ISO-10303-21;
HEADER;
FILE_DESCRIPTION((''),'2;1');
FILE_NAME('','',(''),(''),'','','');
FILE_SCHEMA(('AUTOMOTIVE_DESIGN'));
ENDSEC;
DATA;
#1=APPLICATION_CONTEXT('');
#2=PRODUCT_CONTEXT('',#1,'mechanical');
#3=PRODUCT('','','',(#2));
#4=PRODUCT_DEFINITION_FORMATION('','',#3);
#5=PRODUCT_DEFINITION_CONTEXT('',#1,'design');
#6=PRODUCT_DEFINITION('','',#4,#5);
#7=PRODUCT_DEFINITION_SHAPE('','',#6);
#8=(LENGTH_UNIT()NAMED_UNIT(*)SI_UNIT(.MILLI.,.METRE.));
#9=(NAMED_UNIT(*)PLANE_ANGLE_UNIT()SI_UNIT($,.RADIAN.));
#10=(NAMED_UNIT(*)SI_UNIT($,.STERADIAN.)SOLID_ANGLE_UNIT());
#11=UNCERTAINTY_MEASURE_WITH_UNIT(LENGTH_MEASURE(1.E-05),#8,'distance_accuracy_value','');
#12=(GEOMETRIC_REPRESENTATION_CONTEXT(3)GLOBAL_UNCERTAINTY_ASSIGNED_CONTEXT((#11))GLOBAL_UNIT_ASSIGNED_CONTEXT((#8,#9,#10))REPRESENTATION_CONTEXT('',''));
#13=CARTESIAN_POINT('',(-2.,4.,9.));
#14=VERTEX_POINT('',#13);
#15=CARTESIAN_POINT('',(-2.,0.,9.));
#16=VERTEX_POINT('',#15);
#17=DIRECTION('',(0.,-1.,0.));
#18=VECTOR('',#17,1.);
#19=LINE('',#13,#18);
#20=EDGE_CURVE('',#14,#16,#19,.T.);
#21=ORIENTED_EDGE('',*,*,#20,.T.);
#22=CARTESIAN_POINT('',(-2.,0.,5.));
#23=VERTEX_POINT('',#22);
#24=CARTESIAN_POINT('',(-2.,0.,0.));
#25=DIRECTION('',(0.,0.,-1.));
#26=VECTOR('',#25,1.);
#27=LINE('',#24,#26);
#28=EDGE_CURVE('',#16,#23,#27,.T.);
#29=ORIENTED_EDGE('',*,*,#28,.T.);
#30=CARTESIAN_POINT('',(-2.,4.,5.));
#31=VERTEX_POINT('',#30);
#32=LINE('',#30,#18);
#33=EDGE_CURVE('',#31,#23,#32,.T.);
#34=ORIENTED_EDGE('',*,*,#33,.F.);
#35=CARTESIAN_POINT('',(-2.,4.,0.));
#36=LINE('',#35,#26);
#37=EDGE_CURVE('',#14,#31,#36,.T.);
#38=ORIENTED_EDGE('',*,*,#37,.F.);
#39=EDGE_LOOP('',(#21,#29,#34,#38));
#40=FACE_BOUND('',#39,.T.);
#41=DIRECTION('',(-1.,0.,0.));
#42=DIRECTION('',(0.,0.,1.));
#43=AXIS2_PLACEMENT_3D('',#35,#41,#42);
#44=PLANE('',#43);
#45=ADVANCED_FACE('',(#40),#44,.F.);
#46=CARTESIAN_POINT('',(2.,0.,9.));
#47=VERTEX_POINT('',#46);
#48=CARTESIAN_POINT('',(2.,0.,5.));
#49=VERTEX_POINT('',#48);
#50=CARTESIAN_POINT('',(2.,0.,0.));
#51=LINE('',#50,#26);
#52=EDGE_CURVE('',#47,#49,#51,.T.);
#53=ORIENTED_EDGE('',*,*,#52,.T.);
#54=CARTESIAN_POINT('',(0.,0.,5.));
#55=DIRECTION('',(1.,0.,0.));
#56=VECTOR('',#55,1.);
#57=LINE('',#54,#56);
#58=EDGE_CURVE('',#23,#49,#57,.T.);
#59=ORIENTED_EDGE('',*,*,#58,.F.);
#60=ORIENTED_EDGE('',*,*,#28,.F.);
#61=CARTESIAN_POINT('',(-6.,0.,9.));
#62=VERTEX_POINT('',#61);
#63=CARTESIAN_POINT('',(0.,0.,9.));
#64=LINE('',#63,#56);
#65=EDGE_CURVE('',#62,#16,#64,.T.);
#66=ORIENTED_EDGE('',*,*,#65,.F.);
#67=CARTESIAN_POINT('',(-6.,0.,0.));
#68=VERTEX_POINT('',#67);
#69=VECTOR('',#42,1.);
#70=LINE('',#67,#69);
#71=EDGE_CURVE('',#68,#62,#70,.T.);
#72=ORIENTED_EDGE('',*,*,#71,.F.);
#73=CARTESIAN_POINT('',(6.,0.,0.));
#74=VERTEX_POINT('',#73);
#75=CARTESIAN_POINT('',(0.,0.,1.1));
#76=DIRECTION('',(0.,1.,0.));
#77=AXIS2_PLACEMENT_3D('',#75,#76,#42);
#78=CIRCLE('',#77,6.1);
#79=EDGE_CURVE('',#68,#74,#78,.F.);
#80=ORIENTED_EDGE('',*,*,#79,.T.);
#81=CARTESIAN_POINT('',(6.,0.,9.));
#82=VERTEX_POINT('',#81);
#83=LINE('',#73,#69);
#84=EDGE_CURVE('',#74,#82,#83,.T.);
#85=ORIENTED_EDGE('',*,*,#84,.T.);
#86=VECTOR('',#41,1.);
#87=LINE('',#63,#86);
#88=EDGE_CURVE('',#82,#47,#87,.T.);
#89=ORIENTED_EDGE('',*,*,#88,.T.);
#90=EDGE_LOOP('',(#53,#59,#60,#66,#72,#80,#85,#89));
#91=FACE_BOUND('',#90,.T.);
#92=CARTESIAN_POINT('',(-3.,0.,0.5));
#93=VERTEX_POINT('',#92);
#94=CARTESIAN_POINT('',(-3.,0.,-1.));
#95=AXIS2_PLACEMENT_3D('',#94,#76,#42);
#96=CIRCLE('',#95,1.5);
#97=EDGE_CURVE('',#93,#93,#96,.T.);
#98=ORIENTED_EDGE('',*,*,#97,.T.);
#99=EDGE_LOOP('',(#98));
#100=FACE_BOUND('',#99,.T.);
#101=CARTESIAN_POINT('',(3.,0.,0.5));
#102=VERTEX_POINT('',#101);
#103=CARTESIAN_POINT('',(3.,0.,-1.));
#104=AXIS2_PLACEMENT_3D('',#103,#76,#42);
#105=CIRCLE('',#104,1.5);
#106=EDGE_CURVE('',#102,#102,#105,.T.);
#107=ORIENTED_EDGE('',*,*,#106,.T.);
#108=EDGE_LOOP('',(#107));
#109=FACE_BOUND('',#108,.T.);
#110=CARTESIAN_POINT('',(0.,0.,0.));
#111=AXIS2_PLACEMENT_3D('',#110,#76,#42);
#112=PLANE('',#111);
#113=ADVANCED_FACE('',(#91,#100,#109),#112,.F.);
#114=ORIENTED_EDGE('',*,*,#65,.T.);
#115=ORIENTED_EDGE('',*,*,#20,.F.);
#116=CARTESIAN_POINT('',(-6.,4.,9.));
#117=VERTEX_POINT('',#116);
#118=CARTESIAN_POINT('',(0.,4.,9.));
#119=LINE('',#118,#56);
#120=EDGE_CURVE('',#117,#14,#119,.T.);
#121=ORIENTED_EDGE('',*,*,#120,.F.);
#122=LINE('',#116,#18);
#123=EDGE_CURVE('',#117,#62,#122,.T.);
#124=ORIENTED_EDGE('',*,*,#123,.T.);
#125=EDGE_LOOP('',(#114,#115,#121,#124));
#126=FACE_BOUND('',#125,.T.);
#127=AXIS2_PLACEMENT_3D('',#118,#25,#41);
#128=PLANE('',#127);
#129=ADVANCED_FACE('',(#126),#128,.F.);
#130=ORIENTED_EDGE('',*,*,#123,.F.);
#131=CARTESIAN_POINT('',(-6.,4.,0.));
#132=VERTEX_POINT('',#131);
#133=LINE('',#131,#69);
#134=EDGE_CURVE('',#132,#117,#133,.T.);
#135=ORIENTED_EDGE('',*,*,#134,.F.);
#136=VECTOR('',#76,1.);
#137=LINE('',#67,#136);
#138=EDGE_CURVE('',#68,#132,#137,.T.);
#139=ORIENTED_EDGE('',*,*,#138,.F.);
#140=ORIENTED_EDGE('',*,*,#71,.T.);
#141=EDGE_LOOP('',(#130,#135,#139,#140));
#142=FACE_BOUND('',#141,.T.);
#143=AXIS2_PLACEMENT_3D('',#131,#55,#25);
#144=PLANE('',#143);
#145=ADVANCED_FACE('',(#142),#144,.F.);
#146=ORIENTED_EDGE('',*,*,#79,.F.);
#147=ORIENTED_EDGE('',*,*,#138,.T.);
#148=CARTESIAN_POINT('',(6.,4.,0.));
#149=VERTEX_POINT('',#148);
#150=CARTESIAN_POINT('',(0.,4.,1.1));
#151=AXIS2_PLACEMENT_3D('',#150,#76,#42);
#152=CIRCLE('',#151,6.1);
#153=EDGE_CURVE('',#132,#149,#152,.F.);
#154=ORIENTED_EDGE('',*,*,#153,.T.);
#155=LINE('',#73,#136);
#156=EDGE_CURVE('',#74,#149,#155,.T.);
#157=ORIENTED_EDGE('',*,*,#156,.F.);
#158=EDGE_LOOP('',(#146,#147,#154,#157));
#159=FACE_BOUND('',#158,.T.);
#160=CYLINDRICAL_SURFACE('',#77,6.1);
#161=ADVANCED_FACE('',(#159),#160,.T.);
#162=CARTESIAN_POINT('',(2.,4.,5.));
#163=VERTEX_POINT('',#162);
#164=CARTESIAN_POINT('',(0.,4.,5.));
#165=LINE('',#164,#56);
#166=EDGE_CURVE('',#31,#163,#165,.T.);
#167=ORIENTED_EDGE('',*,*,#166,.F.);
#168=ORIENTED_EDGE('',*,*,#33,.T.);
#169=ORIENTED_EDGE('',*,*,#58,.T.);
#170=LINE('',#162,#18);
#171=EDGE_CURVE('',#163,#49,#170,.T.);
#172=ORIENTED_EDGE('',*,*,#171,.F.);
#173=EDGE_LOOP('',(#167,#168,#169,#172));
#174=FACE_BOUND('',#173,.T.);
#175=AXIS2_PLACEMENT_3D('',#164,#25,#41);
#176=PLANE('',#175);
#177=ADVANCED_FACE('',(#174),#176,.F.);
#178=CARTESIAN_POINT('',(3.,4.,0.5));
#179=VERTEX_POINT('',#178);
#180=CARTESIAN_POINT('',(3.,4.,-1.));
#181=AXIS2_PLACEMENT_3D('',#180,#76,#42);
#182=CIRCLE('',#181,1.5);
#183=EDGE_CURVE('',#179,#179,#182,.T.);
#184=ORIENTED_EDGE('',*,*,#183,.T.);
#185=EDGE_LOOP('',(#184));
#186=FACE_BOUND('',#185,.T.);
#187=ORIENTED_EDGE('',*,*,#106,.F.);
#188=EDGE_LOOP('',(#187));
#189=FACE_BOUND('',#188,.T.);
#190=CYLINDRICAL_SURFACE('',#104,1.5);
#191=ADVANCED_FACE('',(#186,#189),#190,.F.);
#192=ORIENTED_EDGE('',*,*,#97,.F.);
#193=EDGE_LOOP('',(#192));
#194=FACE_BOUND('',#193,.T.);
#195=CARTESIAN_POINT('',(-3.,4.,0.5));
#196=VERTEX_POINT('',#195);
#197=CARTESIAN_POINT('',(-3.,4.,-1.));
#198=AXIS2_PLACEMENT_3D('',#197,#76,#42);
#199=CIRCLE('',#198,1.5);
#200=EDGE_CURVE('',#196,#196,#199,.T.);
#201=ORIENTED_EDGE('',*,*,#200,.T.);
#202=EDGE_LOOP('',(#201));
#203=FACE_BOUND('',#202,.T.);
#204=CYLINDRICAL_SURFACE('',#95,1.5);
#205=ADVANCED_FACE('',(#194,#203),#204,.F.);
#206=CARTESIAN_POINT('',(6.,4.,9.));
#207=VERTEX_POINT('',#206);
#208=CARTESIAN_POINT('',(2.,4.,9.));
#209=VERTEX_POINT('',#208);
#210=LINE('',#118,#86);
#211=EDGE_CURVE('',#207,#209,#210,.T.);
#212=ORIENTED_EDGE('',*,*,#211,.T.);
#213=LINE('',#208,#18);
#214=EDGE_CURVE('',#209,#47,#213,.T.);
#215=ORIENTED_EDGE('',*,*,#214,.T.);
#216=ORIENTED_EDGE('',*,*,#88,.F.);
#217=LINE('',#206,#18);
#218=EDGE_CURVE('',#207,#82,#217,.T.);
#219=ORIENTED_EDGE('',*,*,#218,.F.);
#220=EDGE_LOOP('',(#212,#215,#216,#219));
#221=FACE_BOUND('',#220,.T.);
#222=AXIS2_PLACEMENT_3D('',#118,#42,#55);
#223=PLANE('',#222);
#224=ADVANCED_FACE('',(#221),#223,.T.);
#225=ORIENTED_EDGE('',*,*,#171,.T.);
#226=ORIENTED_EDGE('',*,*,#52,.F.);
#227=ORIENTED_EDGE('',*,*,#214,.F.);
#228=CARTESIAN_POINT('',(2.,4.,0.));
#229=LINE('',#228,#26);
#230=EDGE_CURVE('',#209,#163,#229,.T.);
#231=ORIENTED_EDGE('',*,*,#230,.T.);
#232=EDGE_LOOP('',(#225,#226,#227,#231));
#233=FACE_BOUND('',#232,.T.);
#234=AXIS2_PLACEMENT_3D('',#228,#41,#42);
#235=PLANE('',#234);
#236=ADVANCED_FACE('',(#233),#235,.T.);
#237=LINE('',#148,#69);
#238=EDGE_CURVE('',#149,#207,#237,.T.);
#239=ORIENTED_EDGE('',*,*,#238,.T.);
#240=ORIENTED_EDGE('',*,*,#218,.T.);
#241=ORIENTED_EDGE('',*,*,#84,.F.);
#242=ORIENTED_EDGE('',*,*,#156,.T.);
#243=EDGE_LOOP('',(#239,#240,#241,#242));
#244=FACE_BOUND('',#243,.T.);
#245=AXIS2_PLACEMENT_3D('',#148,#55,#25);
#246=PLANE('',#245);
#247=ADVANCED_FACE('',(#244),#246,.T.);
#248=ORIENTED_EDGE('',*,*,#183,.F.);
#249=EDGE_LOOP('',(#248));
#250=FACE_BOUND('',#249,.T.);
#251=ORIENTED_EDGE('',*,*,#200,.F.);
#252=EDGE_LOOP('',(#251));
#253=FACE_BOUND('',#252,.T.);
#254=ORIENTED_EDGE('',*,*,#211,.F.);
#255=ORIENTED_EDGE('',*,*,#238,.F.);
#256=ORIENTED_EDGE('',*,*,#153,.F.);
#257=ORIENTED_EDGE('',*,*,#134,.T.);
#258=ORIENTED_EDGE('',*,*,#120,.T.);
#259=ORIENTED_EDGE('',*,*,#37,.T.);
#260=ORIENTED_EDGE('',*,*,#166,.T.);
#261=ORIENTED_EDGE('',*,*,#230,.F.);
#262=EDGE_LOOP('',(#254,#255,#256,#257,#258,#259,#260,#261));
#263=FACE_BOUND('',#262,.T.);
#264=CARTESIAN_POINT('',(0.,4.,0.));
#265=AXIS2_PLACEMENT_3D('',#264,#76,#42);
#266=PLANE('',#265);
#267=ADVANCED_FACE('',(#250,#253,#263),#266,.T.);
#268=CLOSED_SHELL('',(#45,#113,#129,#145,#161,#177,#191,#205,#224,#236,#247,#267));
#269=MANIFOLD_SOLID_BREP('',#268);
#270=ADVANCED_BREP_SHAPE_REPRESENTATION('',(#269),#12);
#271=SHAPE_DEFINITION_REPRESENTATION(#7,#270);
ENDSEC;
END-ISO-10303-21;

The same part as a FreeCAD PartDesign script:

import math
import FreeCAD as App
import Part
import Sketcher
from FreeCAD import Vector
Q = App.Units.Quantity

doc = App.newDocument("Part")
body = doc.addObject("PartDesign::Body", "Body")

# Sketch on XZ plane
sketch1 = body.newObject("Sketcher::SketchObject", "Sketch")
sketch1.AttachmentSupport = (doc.getObject("XZ_Plane"), [""])
sketch1.MapMode = "FlatFace"
sketch1.addGeometry(Part.LineSegment(Vector(-6, -5, 0), Vector(-6, 9, 0)), False)
sketch1.addGeometry(Part.LineSegment(Vector(-6, 9, 0), Vector(-2, 9, 0)), False)
sketch1.addGeometry(Part.LineSegment(Vector(-2, 9, 0), Vector(-2, 5, 0)), False)
sketch1.addGeometry(Part.LineSegment(Vector(-2, 5, 0), Vector(2, 5, 0)), False)
sketch1.addGeometry(Part.LineSegment(Vector(2, 5, 0), Vector(2, 9, 0)), False)
sketch1.addGeometry(Part.LineSegment(Vector(2, 9, 0), Vector(6, 9, 0)), False)
sketch1.addGeometry(Part.LineSegment(Vector(6, 9, 0), Vector(6, -5, 0)), False)
sketch1.addGeometry(Part.LineSegment(Vector(6, -5, 0), Vector(-6, -5, 0)), False)
sketch1.addConstraint(Sketcher.Constraint("Coincident", 0, 2, 1, 1))
sketch1.addConstraint(Sketcher.Constraint("Coincident", 1, 2, 2, 1))
sketch1.addConstraint(Sketcher.Constraint("Coincident", 2, 2, 3, 1))
sketch1.addConstraint(Sketcher.Constraint("Coincident", 3, 2, 4, 1))
sketch1.addConstraint(Sketcher.Constraint("Coincident", 4, 2, 5, 1))
sketch1.addConstraint(Sketcher.Constraint("Coincident", 5, 2, 6, 1))
sketch1.addConstraint(Sketcher.Constraint("Coincident", 6, 2, 7, 1))
sketch1.addConstraint(Sketcher.Constraint("Coincident", 7, 2, 0, 1))
sketch1.addConstraint(Sketcher.Constraint("Vertical", 0))
sketch1.addConstraint(Sketcher.Constraint("Horizontal", 1))
sketch1.addConstraint(Sketcher.Constraint("Vertical", 2))
sketch1.addConstraint(Sketcher.Constraint("Horizontal", 3))
sketch1.addConstraint(Sketcher.Constraint("Vertical", 4))
sketch1.addConstraint(Sketcher.Constraint("Horizontal", 5))
sketch1.addConstraint(Sketcher.Constraint("Vertical", 6))
sketch1.addConstraint(Sketcher.Constraint("Horizontal", 7))
sketch1.addConstraint(Sketcher.Constraint("Symmetric", 1, 2, 4, 2, -2))
sketch1.addConstraint(Sketcher.Constraint("Equal", 1, 3))
sketch1.addConstraint(Sketcher.Constraint("Equal", 3, 5))
sketch1.addConstraint(Sketcher.Constraint("Equal", 5, 2))
sketch1.addConstraint(Sketcher.Constraint("DistanceX", 1, 1, 1, 2, Q("4 mm")))
sketch1.addConstraint(Sketcher.Constraint("DistanceY", 0, 1, 0, 2, Q("14 mm")))
sketch1.addConstraint(Sketcher.Constraint("DistanceY", -1, 1, 0, 2, Q("9 mm")))
pad1 = body.newObject("PartDesign::Pad", "Pad")
pad1.Profile = sketch1
pad1.Length = 4
pad1.Reversed = True

# Sketch on XZ plane
sketch2 = body.newObject("Sketcher::SketchObject", "Sketch001")
sketch2.AttachmentSupport = (doc.getObject("XZ_Plane"), [""])
sketch2.MapMode = "FlatFace"
sketch2.AttachmentOffset = App.Placement(Vector(0, 0, -4), App.Rotation())
sketch2.addGeometry(Part.Circle(Vector(-3, -1, 0), Vector(0, 0, 1), 1.5), False)
sketch2.addGeometry(Part.Circle(Vector(3, -1, 0), Vector(0, 0, 1), 1.5), False)
sketch2.addConstraint(Sketcher.Constraint("Equal", 0, 1))
sketch2.addConstraint(Sketcher.Constraint("Symmetric", 0, 3, 1, 3, -2))
sketch2.addConstraint(Sketcher.Constraint("Diameter", 0, Q("3 mm")))
sketch2.addConstraint(Sketcher.Constraint("DistanceX", 0, 3, -1, 1, Q("3 mm")))
sketch2.addConstraint(Sketcher.Constraint("DistanceY", 0, 3, -1, 1, Q("1 mm")))
pocket1 = body.newObject("PartDesign::Pocket", "Pocket")
pocket1.Profile = sketch2
pocket1.Type = "ThroughAll"
pocket1.Reversed = True

# Sketch on XZ plane
sketch3 = body.newObject("Sketcher::SketchObject", "Sketch002")
sketch3.AttachmentSupport = (doc.getObject("XZ_Plane"), [""])
sketch3.MapMode = "FlatFace"
sketch3.AttachmentOffset = App.Placement(Vector(0, 0, -4), App.Rotation())
sketch3.addGeometry(Part.ArcOfCircle(Part.Circle(Vector(0, 1.1, 0), Vector(0, 0, 1), 6.1), math.radians(-169.611142), math.radians(-90)), False)
sketch3.addGeometry(Part.LineSegment(Vector(0, -5, 0), Vector(-6, -5, 0)), False)
sketch3.addGeometry(Part.LineSegment(Vector(-6, -5, 0), Vector(-6, 0, 0)), False)
sketch3.addGeometry(Part.ArcOfCircle(Part.Circle(Vector(0, 1.1, 0), Vector(0, 0, 1), 6.1), math.radians(-90), math.radians(-10.388858)), False)
sketch3.addGeometry(Part.LineSegment(Vector(6, 0, 0), Vector(6, -5, 0)), False)
sketch3.addGeometry(Part.LineSegment(Vector(6, -5, 0), Vector(0, -5, 0)), False)
sketch3.addConstraint(Sketcher.Constraint("Tangent", 0, 2, 1, 1))
sketch3.addConstraint(Sketcher.Constraint("Coincident", 1, 2, 2, 1))
sketch3.addConstraint(Sketcher.Constraint("Coincident", 2, 2, 0, 1))
sketch3.addConstraint(Sketcher.Constraint("Coincident", 3, 2, 4, 1))
sketch3.addConstraint(Sketcher.Constraint("Coincident", 4, 2, 5, 1))
sketch3.addConstraint(Sketcher.Constraint("Tangent", 5, 2, 3, 1))
sketch3.addConstraint(Sketcher.Constraint("Horizontal", 1))
sketch3.addConstraint(Sketcher.Constraint("Vertical", 2))
sketch3.addConstraint(Sketcher.Constraint("Vertical", 4))
sketch3.addConstraint(Sketcher.Constraint("Horizontal", 5))
sketch3.addConstraint(Sketcher.Constraint("Coincident", 3, 3, 0, 3))
sketch3.addConstraint(Sketcher.Constraint("Equal", 0, 3))
sketch3.addConstraint(Sketcher.Constraint("Symmetric", 2, 2, 3, 2, -1, 1))
sketch3.addConstraint(Sketcher.Constraint("PointOnObject", 0, 3, -2))
sketch3.addConstraint(Sketcher.Constraint("Radius", 0, Q("6.1 mm")))
sketch3.addConstraint(Sketcher.Constraint("DistanceX", 1, 2, 1, 1, Q("6 mm")))
pocket2 = body.newObject("PartDesign::Pocket", "Pocket001")
pocket2.Profile = sketch3
pocket2.Length = 4
pocket2.Reversed = True

doc.recompute()
